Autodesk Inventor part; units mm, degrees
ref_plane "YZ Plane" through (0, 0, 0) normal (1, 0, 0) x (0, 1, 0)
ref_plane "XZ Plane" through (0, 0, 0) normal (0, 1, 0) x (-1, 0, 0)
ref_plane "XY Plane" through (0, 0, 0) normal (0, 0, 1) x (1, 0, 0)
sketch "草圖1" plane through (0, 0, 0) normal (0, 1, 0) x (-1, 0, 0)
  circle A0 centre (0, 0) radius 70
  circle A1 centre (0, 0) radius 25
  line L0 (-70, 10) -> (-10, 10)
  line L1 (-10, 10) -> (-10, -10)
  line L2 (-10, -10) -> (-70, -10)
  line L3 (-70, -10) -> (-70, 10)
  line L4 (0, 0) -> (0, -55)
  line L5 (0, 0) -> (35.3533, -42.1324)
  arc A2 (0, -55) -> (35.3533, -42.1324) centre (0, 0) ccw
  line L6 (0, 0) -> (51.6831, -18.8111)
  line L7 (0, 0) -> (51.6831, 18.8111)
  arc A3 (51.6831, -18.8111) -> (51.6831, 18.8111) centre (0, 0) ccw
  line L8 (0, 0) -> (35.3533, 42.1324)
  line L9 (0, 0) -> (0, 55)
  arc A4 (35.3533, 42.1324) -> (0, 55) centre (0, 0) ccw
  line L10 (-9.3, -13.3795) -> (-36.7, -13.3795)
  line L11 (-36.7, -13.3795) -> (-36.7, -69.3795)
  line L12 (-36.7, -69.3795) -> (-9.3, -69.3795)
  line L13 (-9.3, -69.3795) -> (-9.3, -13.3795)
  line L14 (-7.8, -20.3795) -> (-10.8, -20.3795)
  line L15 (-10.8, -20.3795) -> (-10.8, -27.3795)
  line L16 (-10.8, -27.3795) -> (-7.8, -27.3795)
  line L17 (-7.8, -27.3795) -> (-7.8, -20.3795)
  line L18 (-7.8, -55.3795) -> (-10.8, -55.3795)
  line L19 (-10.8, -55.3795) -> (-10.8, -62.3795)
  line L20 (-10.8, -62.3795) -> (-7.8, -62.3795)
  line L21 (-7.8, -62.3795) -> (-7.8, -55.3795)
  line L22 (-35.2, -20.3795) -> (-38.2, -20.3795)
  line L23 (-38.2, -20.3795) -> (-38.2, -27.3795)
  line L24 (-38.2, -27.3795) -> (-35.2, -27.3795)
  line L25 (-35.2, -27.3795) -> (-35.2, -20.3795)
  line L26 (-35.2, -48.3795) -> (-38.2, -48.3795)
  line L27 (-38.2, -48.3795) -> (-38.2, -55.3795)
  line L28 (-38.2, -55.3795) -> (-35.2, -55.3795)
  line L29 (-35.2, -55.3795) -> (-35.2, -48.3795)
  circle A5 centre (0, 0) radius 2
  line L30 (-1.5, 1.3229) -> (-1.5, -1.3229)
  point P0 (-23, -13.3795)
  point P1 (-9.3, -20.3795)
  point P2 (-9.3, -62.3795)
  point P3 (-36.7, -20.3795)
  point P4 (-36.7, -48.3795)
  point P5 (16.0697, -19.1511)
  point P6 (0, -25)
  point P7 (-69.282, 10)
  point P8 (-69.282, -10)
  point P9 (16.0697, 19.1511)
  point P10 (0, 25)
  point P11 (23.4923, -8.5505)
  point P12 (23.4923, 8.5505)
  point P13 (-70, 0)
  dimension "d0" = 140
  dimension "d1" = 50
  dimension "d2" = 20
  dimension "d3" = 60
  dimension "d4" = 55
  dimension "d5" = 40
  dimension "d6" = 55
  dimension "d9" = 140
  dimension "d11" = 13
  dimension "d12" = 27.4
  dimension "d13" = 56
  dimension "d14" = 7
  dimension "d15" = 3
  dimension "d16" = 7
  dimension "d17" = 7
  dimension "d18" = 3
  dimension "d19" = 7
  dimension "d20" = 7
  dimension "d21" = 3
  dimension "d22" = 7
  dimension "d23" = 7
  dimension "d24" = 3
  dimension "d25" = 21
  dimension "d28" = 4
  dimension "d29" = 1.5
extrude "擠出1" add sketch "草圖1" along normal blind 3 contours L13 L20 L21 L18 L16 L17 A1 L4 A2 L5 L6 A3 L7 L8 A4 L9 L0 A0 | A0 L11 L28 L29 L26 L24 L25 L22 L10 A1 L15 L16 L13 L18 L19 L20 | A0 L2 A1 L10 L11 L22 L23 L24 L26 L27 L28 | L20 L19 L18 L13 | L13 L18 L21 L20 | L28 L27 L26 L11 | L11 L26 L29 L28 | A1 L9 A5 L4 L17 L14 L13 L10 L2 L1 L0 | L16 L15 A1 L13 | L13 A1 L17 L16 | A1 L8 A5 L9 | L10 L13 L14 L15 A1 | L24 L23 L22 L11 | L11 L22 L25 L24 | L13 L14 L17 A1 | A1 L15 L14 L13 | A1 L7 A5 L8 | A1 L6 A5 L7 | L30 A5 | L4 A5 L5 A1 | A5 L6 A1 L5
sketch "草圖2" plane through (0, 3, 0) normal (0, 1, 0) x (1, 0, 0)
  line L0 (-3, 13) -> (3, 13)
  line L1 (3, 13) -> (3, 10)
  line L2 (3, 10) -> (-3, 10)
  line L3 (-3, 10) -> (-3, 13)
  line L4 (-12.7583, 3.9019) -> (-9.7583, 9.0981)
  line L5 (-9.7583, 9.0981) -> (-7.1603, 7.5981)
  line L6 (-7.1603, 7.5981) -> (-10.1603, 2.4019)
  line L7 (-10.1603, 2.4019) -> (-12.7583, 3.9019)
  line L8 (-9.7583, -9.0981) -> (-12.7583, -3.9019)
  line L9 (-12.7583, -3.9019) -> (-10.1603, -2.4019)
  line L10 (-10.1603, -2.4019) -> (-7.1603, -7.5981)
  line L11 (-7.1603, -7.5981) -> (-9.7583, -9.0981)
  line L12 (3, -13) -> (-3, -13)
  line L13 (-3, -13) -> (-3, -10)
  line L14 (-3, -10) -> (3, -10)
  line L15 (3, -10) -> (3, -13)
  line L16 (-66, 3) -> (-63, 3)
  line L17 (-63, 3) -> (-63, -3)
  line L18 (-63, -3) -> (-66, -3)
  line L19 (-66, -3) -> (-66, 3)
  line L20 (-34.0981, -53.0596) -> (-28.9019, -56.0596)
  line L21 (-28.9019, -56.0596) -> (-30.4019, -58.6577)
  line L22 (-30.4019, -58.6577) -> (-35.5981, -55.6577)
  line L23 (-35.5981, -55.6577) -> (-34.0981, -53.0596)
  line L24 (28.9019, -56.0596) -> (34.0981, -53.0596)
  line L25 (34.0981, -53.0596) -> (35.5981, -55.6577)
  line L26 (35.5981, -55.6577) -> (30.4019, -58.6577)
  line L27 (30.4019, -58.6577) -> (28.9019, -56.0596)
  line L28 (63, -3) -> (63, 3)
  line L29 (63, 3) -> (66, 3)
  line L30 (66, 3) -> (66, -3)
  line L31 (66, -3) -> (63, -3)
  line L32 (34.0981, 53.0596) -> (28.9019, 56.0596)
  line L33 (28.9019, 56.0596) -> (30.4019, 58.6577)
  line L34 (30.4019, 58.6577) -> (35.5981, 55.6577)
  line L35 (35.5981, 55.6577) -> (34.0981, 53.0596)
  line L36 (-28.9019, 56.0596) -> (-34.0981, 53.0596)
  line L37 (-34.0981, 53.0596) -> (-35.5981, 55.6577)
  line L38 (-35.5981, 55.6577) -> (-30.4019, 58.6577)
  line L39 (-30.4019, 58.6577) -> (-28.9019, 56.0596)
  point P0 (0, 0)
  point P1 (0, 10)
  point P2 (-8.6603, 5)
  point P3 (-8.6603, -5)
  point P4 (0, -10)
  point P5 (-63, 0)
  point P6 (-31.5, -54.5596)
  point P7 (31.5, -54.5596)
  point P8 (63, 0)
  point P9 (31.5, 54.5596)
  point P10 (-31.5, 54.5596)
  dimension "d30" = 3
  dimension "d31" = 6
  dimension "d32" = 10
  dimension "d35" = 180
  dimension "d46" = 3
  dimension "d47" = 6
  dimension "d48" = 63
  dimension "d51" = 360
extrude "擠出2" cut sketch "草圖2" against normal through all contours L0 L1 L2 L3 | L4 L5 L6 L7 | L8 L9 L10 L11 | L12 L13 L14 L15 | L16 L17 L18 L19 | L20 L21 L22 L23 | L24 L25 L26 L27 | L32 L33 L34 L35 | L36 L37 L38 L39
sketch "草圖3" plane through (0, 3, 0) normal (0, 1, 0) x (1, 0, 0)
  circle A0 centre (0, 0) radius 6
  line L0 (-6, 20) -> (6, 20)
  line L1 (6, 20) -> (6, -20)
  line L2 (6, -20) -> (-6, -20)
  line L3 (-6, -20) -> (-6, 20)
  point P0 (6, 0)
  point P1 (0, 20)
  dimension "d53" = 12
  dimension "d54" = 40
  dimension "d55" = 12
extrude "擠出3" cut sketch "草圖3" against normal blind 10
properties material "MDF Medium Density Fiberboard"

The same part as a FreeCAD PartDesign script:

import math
import FreeCAD as App
import Part
import Sketcher

V = App.Vector
Q = App.Units.Quantity


def add_polygon(sketch, points):
    """Adds a closed chain of lines whose ends are joined by coincident constraints."""
    first, n = sketch.GeometryCount, len(points)
    for a, b in zip(points, points[1:] + points[:1]):
        sketch.addGeometry(Part.LineSegment(App.Vector(*a, 0), App.Vector(*b, 0)), False)
    for i in range(n):
        sketch.addConstraint(Sketcher.Constraint("Coincident", first + i, 2, first + (i + 1) % n, 1))

doc = App.newDocument("Part")
params = doc.addObject("Spreadsheet::Sheet", "Params")
for row, (alias, value) in enumerate([
    ("sketch1_radius", "70 mm"),
    ("sketch1_radius2", "25 mm"),
    ("sketch1_radius3", "55 mm"),
    ("sketch1_radius4", "2 mm"),
    ("sketch1_height", "20 mm"),
    ("pad1_length", "3 mm"),
    ("sketch2_width", "6 mm"),
    ("sketch2_width2", "3 mm"),
    ("sketch2_length", "6 mm"),
    ("sketch2_length2", "3 mm"),
    ("sketch3_width", "12 mm"),
    ("sketch3_height", "40 mm"),
    ("pocket2_length", "10 mm"),
], start=1):
    params.set(f"A{row}", alias)
    params.set(f"B{row}", "=" + value)
    params.setAlias(f"B{row}", alias)

body = doc.addObject("PartDesign::Body", "Body")

# Sketch on XZ plane
sketch1 = doc.addObject("Sketcher::SketchObject", "Sketch")
body.addObject(sketch1)
sketch1.AttachmentSupport = (doc.XZ_Plane, [""])
sketch1.MapMode = "FlatFace"
sketch1.addGeometry([
    Part.LineSegment(V(69.3, 10, 0), V(10, 10, 0)),  # 0
    Part.LineSegment(V(10, 10, 0), V(10, -10, 0)),  # 1
    Part.LineSegment(V(10, -10, 0), V(69.3, -10, 0)),  # 2
    Part.ArcOfCircle(Part.Circle(V(0, 0, 0), V(0, 0, 1), 70), math.radians(8), math.radians(352)),  # 3
    Part.LineSegment(V(0, -55, 0), V(0, -25, 0)),  # 4
    Part.ArcOfCircle(Part.Circle(V(0, 0, 0), V(0, 0, 1), 25), math.radians(-130), math.radians(-90)),  # 5
    Part.LineSegment(V(-16.1, -19.2, 0), V(-35.4, -42.1, 0)),  # 6
    Part.ArcOfCircle(Part.Circle(V(0, 0, 0), V(0, 0, 1), 55), math.radians(-130), math.radians(-90)),  # 7
    Part.LineSegment(V(-51.7, -18.8, 0), V(-23.5, -8.6, 0)),  # 8
    Part.ArcOfCircle(Part.Circle(V(0, 0, 0), V(0, 0, 1), 25), math.radians(160), math.radians(200)),  # 9
    Part.LineSegment(V(-23.5, 8.6, 0), V(-51.7, 18.8, 0)),  # 10
    Part.ArcOfCircle(Part.Circle(V(0, 0, 0), V(0, 0, 1), 55), math.radians(160), math.radians(200)),  # 11
    Part.LineSegment(V(-35.4, 42.1, 0), V(-16.1, 19.2, 0)),  # 12
    Part.ArcOfCircle(Part.Circle(V(0, 0, 0), V(0, 0, 1), 25), math.radians(90), math.radians(130)),  # 13
    Part.LineSegment(V(0, 25, 0), V(0, 55, 0)),  # 14
    Part.ArcOfCircle(Part.Circle(V(0, 0, 0), V(0, 0, 1), 55), math.radians(90), math.radians(130)),  # 15
    Part.ArcOfCircle(Part.Circle(V(0, 0, 0), V(0, 0, 1), 2), math.radians(41), math.radians(319)),  # 16
    Part.LineSegment(V(1.5, 1.3, 0), V(1.5, -1.3, 0)),  # 17
], False)
sketch1.addConstraint([
    Sketcher.Constraint("Coincident", 0, 2, 1, 1),
    Sketcher.Constraint("Coincident", 1, 2, 2, 1),
    Sketcher.Constraint("Coincident", 2, 2, 3, 2),
    Sketcher.Constraint("Coincident", 3, 1, 0, 1),
    Sketcher.Constraint("Coincident", 4, 2, 5, 2),
    Sketcher.Constraint("Coincident", 5, 1, 6, 1),
    Sketcher.Constraint("Coincident", 6, 2, 7, 1),
    Sketcher.Constraint("Coincident", 7, 2, 4, 1),
    Sketcher.Constraint("Coincident", 8, 2, 9, 2),
    Sketcher.Constraint("Coincident", 9, 1, 10, 1),
    Sketcher.Constraint("Coincident", 10, 2, 11, 1),
    Sketcher.Constraint("Coincident", 11, 2, 8, 1),
    Sketcher.Constraint("Coincident", 12, 2, 13, 2),
    Sketcher.Constraint("Coincident", 13, 1, 14, 1),
    Sketcher.Constraint("Coincident", 14, 2, 15, 1),
    Sketcher.Constraint("Coincident", 15, 2, 12, 1),
    Sketcher.Constraint("Coincident", 16, 1, 17, 1),
    Sketcher.Constraint("Coincident", 17, 2, 16, 2),
    Sketcher.Constraint("Horizontal", 0),
    Sketcher.Constraint("Vertical", 1),
    Sketcher.Constraint("Horizontal", 2),
    Sketcher.Constraint("Vertical", 4),
    Sketcher.Constraint("Vertical", 14),
    Sketcher.Constraint("Vertical", 17),
    Sketcher.Constraint("Coincident", 3, 3, -1, 1),
    Sketcher.Constraint("Coincident", 5, 3, -1, 1),
    Sketcher.Constraint("Coincident", 7, 3, -1, 1),
    Sketcher.Constraint("Coincident", 9, 3, -1, 1),
    Sketcher.Constraint("Coincident", 11, 3, -1, 1),
    Sketcher.Constraint("Coincident", 13, 3, -1, 1),
    Sketcher.Constraint("Coincident", 15, 3, -1, 1),
    Sketcher.Constraint("Coincident", 16, 3, -1, 1),
    Sketcher.Constraint("Equal", 5, 9),
    Sketcher.Constraint("Equal", 7, 11),
    Sketcher.Constraint("Equal", 9, 13),
    Sketcher.Constraint("Equal", 11, 15),
    Sketcher.Constraint("PointOnObject", 4, 2, -2),
    Sketcher.Constraint("PointOnObject", 13, 1, -2),
    Sketcher.Constraint("Vertical", 2, 2, 3, 1),
    Sketcher.Constraint("Vertical", 8, 2, 9, 1),
    Sketcher.Constraint("Vertical", 10, 2, 11, 2),
    Sketcher.Constraint("Vertical", 5, 1, 12, 2),
    Sketcher.Constraint("Vertical", 6, 2, 15, 2),
    Sketcher.Constraint("Radius", 3, Q("70 mm")),
    Sketcher.Constraint("Radius", 5, Q("25 mm")),
    Sketcher.Constraint("Radius", 7, Q("55 mm")),
    Sketcher.Constraint("Radius", 16, Q("2 mm")),
    Sketcher.Constraint("DistanceY", 1, 2, 1, 1, Q("20 mm")),
    Sketcher.Constraint("Angle", 8, Q("20 deg")),
    Sketcher.Constraint("Angle", 12, Q("-50 deg")),
    Sketcher.Constraint("DistanceX", -1, 1, 16, 1, Q("1.5 mm")),
    Sketcher.Constraint("DistanceX", -1, 1, 0, 2, Q("10 mm")),
    Sketcher.Constraint("DistanceY", 5, 1, 11, 2, Q("0.34 mm")),
    Sketcher.Constraint("DistanceY", 5, 1, -1, 1, Q("19.151 mm")),
])
sketch1.setExpression("Constraints[43]", "Params.sketch1_radius")
sketch1.setExpression("Constraints[44]", "Params.sketch1_radius2")
sketch1.setExpression("Constraints[45]", "Params.sketch1_radius3")
sketch1.setExpression("Constraints[46]", "Params.sketch1_radius4")
sketch1.setExpression("Constraints[47]", "Params.sketch1_height")
pad1 = doc.addObject("PartDesign::Pad", "Pad")
body.addObject(pad1)
pad1.Profile = sketch1
pad1.setExpression("Length", "Params.pad1_length")
pad1.Reversed = True

# Sketch on XZ plane
sketch2 = doc.addObject("Sketcher::SketchObject", "Sketch001")
body.addObject(sketch2)
sketch2.AttachmentSupport = (doc.XZ_Plane, [""])
sketch2.MapMode = "FlatFace"
sketch2.AttachmentOffset = App.Placement(V(0, 0, -3), App.Rotation())
add_polygon(sketch2, [(3, -13), (-3, -13), (-3, -10), (3, -10)])  # lines 0-3
add_polygon(sketch2, [(-9.8, -9.1), (-12.8, -3.9), (-10.2, -2.4), (-7.2, -7.6)])  # lines 4-7
add_polygon(sketch2, [(-12.8, 3.9), (-9.8, 9.1), (-7.2, 7.6), (-10.2, 2.4)])  # lines 8-11
add_polygon(sketch2, [(-3, 13), (3, 13), (3, 10), (-3, 10)])  # lines 12-15
add_polygon(sketch2, [(-63, -3), (-66, -3), (-66, 3), (-63, 3)])  # lines 16-19
add_polygon(sketch2, [(-28.9, 56.1), (-34.1, 53.1), (-35.6, 55.7), (-30.4, 58.7)])  # lines 20-23
add_polygon(sketch2, [(34.1, 53.1), (28.9, 56.1), (30.4, 58.7), (35.6, 55.7)])  # lines 24-27
add_polygon(sketch2, [(28.9, -56.1), (34.1, -53.1), (35.6, -55.7), (30.4, -58.7)])  # lines 28-31
add_polygon(sketch2, [(-34.1, -53.1), (-28.9, -56.1), (-30.4, -58.7), (-35.6, -55.7)])  # lines 32-35
sketch2.addConstraint([
    Sketcher.Constraint("Horizontal", 0),
    Sketcher.Constraint("Vertical", 1),
    Sketcher.Constraint("Horizontal", 2),
    Sketcher.Constraint("Vertical", 3),
    Sketcher.Constraint("Horizontal", 12),
    Sketcher.Constraint("Vertical", 13),
    Sketcher.Constraint("Horizontal", 14),
    Sketcher.Constraint("Vertical", 15),
    Sketcher.Constraint("Horizontal", 16),
    Sketcher.Constraint("Vertical", 17),
    Sketcher.Constraint("Horizontal", 18),
    Sketcher.Constraint("Vertical", 19),
    Sketcher.Constraint("Symmetric", 0, 2, 12, 2, -1, 1),
    Sketcher.Constraint("Symmetric", 2, 2, 14, 2, -1, 1),
    Sketcher.Constraint("Symmetric", 20, 2, 28, 2, -1, 1),
    Sketcher.Constraint("Symmetric", 21, 2, 29, 2, -1, 1),
    Sketcher.Constraint("Symmetric", 22, 2, 30, 2, -1, 1),
    Sketcher.Constraint("Symmetric", 23, 2, 31, 2, -1, 1),
    Sketcher.Constraint("Symmetric", 24, 2, 32, 2, -1, 1),
    Sketcher.Constraint("Symmetric", 25, 2, 33, 2, -1, 1),
    Sketcher.Constraint("Symmetric", 26, 2, 34, 2, -1, 1),
    Sketcher.Constraint("Symmetric", 27, 2, 35, 2, -1, 1),
    Sketcher.Constraint("Symmetric", 23, 2, 24, 2, -2),
    Sketcher.Constraint("Symmetric", 22, 2, 25, 2, -2),
    Sketcher.Constraint("Symmetric", 21, 2, 26, 2, -2),
    Sketcher.Constraint("Symmetric", 20, 2, 27, 2, -2),
    Sketcher.Constraint("Symmetric", 7, 2, 8, 2, -1),
    Sketcher.Constraint("Symmetric", 6, 2, 9, 2, -1),
    Sketcher.Constraint("Symmetric", 5, 2, 10, 2, -1),
    Sketcher.Constraint("Symmetric", 4, 2, 11, 2, -1),
    Sketcher.Constraint("Perpendicular", 4, 5),
    Sketcher.Constraint("Perpendicular", 5, 6),
    Sketcher.Constraint("Perpendicular", 6, 7),
    Sketcher.Constraint("Parallel", 7, 20),
    Sketcher.Constraint("Perpendicular", 20, 21),
    Sketcher.Constraint("Perpendicular", 21, 22),
    Sketcher.Constraint("Perpendicular", 22, 23),
    Sketcher.Constraint("Vertical", 3, 2, 12, 2),
    Sketcher.Constraint("Equal", 18, 1),
    Sketcher.Constraint("Equal", 14, 17),
    Sketcher.Constraint("Equal", 10, 20),
    Sketcher.Constraint("Equal", 11, 21),
    Sketcher.Constraint("DistanceX", 0, 2, 0, 1, Q("6 mm")),
    Sketcher.Constraint("DistanceX", 16, 2, 16, 1, Q("3 mm")),
    Sketcher.Constraint("Distance", 4, Q("6 mm")),
    Sketcher.Constraint("Distance", 5, Q("3 mm")),
    Sketcher.Constraint("DistanceY", 1, 2, -1, 1, Q("10 mm")),
    Sketcher.Constraint("DistanceY", 16, 2, -1, 1, Q("3 mm")),
    Sketcher.Constraint("DistanceX", 18, 2, -1, 1, Q("63 mm")),
    Sketcher.Constraint("DistanceX", 5, 2, 6, 2, Q("3 mm")),
    Sketcher.Constraint("DistanceY", 5, 2, 9, 2, Q("10 mm")),
    Sketcher.Constraint("DistanceX", 20, 2, -1, 1, Q("34.098 mm")),
    Sketcher.Constraint("DistanceX", 4, 2, -1, 1, Q("12.7583 mm")),
    Sketcher.Constraint("DistanceY", -1, 1, 20, 2, Q("53.0596 mm")),
])
sketch2.setExpression("Constraints[78]", "Params.sketch2_width")
sketch2.setExpression("Constraints[79]", "Params.sketch2_width2")
sketch2.setExpression("Constraints[80]", "Params.sketch2_length")
sketch2.setExpression("Constraints[81]", "Params.sketch2_length2")
pocket1 = doc.addObject("PartDesign::Pocket", "Pocket")
body.addObject(pocket1)
pocket1.Profile = sketch2
pocket1.Type = "ThroughAll"
pocket1.Reversed = True

# Sketch on XZ plane
sketch3 = doc.addObject("Sketcher::SketchObject", "Sketch002")
body.addObject(sketch3)
sketch3.AttachmentSupport = (doc.XZ_Plane, [""])
sketch3.MapMode = "FlatFace"
sketch3.AttachmentOffset = App.Placement(V(0, 0, -3), App.Rotation())
add_polygon(sketch3, [(6, 20), (6, -20), (-6, -20), (-6, 20)])  # lines 0-3
sketch3.addConstraint([
    Sketcher.Constraint("Vertical", 0),
    Sketcher.Constraint("Horizontal", 1),
    Sketcher.Constraint("Vertical", 2),
    Sketcher.Constraint("Horizontal", 3),
    Sketcher.Constraint("Symmetric", 0, 2, 2, 2, -1, 1),
    Sketcher.Constraint("DistanceX", 1, 2, 1, 1, Q("12 mm")),
    Sketcher.Constraint("DistanceY", 0, 2, 0, 1, Q("40 mm")),
])
sketch3.setExpression("Constraints[9]", "Params.sketch3_width")
sketch3.setExpression("Constraints[10]", "Params.sketch3_height")
pocket2 = doc.addObject("PartDesign::Pocket", "Pocket001")
body.addObject(pocket2)
pocket2.Profile = sketch3
pocket2.setExpression("Length", "Params.pocket2_length")
pocket2.Reversed = True

doc.recompute()
